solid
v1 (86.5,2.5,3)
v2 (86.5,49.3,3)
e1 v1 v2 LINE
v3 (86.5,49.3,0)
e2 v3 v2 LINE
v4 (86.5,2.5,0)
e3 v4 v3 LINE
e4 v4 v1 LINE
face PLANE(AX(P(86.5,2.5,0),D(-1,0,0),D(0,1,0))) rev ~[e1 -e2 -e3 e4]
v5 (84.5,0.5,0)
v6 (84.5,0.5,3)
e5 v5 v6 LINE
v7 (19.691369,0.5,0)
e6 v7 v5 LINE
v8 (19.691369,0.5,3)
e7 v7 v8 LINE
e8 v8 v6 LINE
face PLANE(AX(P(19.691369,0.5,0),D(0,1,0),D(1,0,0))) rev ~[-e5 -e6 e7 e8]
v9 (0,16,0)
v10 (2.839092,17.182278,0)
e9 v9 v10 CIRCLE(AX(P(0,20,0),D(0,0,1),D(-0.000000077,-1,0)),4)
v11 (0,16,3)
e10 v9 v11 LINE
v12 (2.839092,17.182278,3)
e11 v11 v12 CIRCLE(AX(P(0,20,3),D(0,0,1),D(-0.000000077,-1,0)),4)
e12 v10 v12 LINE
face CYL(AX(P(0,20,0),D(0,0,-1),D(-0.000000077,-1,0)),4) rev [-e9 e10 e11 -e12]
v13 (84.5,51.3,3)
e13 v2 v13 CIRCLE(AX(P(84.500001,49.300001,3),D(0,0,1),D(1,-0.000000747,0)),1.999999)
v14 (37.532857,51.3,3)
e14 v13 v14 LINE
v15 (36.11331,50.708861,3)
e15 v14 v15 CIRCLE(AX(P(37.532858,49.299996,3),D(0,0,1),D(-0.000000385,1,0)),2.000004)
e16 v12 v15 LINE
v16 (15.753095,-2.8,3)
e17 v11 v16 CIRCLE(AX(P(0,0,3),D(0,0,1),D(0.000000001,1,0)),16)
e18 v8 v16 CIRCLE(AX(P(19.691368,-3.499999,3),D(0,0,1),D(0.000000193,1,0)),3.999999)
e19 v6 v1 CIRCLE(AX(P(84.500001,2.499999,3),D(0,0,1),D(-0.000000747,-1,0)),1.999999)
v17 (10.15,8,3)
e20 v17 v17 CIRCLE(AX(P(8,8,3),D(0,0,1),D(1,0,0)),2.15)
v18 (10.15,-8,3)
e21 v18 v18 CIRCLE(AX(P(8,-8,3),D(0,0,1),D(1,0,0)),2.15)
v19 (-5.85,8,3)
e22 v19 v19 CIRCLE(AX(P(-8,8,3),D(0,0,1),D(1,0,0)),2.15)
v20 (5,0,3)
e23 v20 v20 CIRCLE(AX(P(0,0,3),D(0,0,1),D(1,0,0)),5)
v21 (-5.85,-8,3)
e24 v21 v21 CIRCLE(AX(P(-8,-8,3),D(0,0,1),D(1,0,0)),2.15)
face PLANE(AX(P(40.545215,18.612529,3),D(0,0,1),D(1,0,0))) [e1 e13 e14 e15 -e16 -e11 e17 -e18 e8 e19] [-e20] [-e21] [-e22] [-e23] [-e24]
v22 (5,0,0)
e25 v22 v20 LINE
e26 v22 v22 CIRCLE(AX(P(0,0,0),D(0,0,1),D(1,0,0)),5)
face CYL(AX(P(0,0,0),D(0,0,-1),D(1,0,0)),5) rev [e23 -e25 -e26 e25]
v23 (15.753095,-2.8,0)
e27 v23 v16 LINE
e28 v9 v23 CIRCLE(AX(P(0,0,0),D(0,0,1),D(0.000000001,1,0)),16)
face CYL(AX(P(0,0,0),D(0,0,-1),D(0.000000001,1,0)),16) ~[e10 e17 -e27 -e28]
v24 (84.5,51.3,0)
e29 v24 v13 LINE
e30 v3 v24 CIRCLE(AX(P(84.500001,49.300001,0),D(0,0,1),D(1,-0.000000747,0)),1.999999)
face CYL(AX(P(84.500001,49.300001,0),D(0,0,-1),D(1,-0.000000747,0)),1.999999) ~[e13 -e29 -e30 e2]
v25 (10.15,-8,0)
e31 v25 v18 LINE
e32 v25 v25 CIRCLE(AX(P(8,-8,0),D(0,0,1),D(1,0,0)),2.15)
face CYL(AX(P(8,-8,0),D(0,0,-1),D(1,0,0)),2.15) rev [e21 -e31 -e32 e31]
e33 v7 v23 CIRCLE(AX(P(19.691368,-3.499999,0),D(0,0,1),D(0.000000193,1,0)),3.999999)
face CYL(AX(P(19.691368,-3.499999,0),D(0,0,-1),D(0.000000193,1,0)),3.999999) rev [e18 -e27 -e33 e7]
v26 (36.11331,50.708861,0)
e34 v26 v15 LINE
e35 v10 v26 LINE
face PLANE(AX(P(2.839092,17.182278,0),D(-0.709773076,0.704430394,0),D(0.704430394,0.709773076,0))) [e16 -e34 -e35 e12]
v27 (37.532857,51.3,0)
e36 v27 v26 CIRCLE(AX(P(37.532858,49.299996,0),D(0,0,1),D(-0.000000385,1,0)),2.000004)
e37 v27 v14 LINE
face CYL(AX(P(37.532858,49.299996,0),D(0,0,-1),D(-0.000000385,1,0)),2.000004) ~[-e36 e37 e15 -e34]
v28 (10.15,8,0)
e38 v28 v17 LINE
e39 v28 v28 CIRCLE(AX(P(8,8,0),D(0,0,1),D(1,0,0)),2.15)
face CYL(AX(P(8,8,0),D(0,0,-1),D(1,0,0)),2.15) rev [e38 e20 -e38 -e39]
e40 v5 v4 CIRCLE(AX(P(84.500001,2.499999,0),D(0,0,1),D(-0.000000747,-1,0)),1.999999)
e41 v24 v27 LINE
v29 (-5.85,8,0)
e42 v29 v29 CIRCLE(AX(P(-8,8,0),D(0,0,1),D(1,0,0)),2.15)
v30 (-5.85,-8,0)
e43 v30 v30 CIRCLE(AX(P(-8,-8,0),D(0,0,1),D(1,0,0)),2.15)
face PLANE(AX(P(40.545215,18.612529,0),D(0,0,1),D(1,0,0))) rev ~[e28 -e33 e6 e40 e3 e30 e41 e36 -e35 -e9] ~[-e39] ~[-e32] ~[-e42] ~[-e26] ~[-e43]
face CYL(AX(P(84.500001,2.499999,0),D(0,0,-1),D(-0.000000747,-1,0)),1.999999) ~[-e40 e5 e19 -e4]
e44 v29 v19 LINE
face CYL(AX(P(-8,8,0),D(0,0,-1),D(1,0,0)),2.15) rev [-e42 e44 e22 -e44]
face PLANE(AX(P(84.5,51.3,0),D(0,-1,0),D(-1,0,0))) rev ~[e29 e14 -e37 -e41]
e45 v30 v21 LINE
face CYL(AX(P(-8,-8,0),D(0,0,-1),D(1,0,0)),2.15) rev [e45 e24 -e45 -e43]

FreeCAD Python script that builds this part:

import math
import FreeCAD as App
import Part
import Sketcher

doc = App.newDocument("Part")
body = doc.addObject("PartDesign::Body", "Body")

sketch1 = body.newObject("Sketcher::SketchObject", "Sketch")
sketch1.AttachmentSupport = (doc.getObject("XY_Plane"), [""])
sketch1.MapMode = "FlatFace"
sketch1.addGeometry([
    Part.ArcOfCircle(Part.Circle(App.Vector(84.5, 2.5, 0), App.Vector(0, 0, 1), 2), math.radians(-90), math.radians(0)),
    Part.LineSegment(App.Vector(86.5, 2.5, 0), App.Vector(86.5, 49.3, 0)),
    Part.ArcOfCircle(Part.Circle(App.Vector(84.5, 49.3, 0), App.Vector(0, 0, 1), 2), math.radians(0), math.radians(90)),
    Part.LineSegment(App.Vector(84.5, 51.3, 0), App.Vector(37.5, 51.3, 0)),
    Part.ArcOfCircle(Part.Circle(App.Vector(37.5, 49.3, 0), App.Vector(0, 0, 1), 2), math.radians(90), math.radians(135)),
    Part.LineSegment(App.Vector(36.1, 50.7, 0), App.Vector(2.8, 17.2, 0)),
    Part.ArcOfCircle(Part.Circle(App.Vector(0, 20, 0), App.Vector(0, 0, 1), 4), math.radians(-90), math.radians(-45)),
    Part.ArcOfCircle(Part.Circle(App.Vector(0, 0, 0), App.Vector(0, 0, 1), 16), math.radians(90), math.radians(350)),
    Part.ArcOfCircle(Part.Circle(App.Vector(19.7, -3.5, 0), App.Vector(0, 0, 1), 4), math.radians(90), math.radians(170)),
    Part.LineSegment(App.Vector(19.7, 0.5, 0), App.Vector(84.5, 0.5, 0)),
    Part.Circle(App.Vector(-8, -8, 0), App.Vector(0, 0, 1), 2.1),
    Part.Circle(App.Vector(8, -8, 0), App.Vector(0, 0, 1), 2.1),
    Part.Circle(App.Vector(-8, 8, 0), App.Vector(0, 0, 1), 2.1),
    Part.Circle(App.Vector(0, 0, 0), App.Vector(0, 0, 1), 5),
    Part.Circle(App.Vector(8, 8, 0), App.Vector(0, 0, 1), 2.1),
], False)
sketch1.addConstraint([
    Sketcher.Constraint("Tangent", 0, 2, 1, 1),
    Sketcher.Constraint("Tangent", 1, 2, 2, 1),
    Sketcher.Constraint("Tangent", 2, 2, 3, 1),
    Sketcher.Constraint("Tangent", 3, 2, 4, 1),
    Sketcher.Constraint("Tangent", 4, 2, 5, 1),
    Sketcher.Constraint("Tangent", 5, 2, 6, 2),
    Sketcher.Constraint("Tangent", 6, 1, 7, 1),
    Sketcher.Constraint("Tangent", 7, 2, 8, 2),
    Sketcher.Constraint("Tangent", 8, 1, 9, 1),
    Sketcher.Constraint("Tangent", 9, 2, 0, 1),
    Sketcher.Constraint("Vertical", 1),
    Sketcher.Constraint("Horizontal", 3),
    Sketcher.Constraint("Horizontal", 9),
    Sketcher.Constraint("Coincident", 7, 3, -1, 1),
    Sketcher.Constraint("Coincident", 13, 3, -1, 1),
    Sketcher.Constraint("Equal", 0, 2),
    Sketcher.Constraint("Equal", 6, 8),
    Sketcher.Constraint("Equal", 10, 11),
    Sketcher.Constraint("Equal", 11, 12),
    Sketcher.Constraint("Equal", 12, 14),
    Sketcher.Constraint("Symmetric", 11, 3, 12, 3, -1, 1),
    Sketcher.Constraint("Symmetric", 10, 3, 14, 3, -1, 1),
    Sketcher.Constraint("Symmetric", 10, 3, 11, 3, -2),
    Sketcher.Constraint("PointOnObject", 6, 3, -2),
    Sketcher.Constraint("Diameter", 13, 10.0),
    Sketcher.Constraint("Radius", 0, 1.999999),
    Sketcher.Constraint("Radius", 6, 4.0),
    Sketcher.Constraint("Radius", 7, 16.0),
    Sketcher.Constraint("Diameter", 10, 4.3),
    Sketcher.Constraint("DistanceY", 1, 1, 1, 2, 46.8),
    Sketcher.Constraint("DistanceX", 10, 3, -1, 1, 8.0),
    Sketcher.Constraint("DistanceY", 10, 3, -1, 1, 8.0),
    Sketcher.Constraint("DistanceX", -1, 1, 0, 3, 84.500001),
    Sketcher.Constraint("DistanceY", -1, 1, 0, 3, 2.499999),
    Sketcher.Constraint("Radius", 4, 2.000004),
    Sketcher.Constraint("DistanceX", 3, 2, 3, 1, 46.967143),
])
pad1 = body.newObject("PartDesign::Pad", "Pad")
pad1.Profile = sketch1
pad1.Length = 3

doc.recompute()
